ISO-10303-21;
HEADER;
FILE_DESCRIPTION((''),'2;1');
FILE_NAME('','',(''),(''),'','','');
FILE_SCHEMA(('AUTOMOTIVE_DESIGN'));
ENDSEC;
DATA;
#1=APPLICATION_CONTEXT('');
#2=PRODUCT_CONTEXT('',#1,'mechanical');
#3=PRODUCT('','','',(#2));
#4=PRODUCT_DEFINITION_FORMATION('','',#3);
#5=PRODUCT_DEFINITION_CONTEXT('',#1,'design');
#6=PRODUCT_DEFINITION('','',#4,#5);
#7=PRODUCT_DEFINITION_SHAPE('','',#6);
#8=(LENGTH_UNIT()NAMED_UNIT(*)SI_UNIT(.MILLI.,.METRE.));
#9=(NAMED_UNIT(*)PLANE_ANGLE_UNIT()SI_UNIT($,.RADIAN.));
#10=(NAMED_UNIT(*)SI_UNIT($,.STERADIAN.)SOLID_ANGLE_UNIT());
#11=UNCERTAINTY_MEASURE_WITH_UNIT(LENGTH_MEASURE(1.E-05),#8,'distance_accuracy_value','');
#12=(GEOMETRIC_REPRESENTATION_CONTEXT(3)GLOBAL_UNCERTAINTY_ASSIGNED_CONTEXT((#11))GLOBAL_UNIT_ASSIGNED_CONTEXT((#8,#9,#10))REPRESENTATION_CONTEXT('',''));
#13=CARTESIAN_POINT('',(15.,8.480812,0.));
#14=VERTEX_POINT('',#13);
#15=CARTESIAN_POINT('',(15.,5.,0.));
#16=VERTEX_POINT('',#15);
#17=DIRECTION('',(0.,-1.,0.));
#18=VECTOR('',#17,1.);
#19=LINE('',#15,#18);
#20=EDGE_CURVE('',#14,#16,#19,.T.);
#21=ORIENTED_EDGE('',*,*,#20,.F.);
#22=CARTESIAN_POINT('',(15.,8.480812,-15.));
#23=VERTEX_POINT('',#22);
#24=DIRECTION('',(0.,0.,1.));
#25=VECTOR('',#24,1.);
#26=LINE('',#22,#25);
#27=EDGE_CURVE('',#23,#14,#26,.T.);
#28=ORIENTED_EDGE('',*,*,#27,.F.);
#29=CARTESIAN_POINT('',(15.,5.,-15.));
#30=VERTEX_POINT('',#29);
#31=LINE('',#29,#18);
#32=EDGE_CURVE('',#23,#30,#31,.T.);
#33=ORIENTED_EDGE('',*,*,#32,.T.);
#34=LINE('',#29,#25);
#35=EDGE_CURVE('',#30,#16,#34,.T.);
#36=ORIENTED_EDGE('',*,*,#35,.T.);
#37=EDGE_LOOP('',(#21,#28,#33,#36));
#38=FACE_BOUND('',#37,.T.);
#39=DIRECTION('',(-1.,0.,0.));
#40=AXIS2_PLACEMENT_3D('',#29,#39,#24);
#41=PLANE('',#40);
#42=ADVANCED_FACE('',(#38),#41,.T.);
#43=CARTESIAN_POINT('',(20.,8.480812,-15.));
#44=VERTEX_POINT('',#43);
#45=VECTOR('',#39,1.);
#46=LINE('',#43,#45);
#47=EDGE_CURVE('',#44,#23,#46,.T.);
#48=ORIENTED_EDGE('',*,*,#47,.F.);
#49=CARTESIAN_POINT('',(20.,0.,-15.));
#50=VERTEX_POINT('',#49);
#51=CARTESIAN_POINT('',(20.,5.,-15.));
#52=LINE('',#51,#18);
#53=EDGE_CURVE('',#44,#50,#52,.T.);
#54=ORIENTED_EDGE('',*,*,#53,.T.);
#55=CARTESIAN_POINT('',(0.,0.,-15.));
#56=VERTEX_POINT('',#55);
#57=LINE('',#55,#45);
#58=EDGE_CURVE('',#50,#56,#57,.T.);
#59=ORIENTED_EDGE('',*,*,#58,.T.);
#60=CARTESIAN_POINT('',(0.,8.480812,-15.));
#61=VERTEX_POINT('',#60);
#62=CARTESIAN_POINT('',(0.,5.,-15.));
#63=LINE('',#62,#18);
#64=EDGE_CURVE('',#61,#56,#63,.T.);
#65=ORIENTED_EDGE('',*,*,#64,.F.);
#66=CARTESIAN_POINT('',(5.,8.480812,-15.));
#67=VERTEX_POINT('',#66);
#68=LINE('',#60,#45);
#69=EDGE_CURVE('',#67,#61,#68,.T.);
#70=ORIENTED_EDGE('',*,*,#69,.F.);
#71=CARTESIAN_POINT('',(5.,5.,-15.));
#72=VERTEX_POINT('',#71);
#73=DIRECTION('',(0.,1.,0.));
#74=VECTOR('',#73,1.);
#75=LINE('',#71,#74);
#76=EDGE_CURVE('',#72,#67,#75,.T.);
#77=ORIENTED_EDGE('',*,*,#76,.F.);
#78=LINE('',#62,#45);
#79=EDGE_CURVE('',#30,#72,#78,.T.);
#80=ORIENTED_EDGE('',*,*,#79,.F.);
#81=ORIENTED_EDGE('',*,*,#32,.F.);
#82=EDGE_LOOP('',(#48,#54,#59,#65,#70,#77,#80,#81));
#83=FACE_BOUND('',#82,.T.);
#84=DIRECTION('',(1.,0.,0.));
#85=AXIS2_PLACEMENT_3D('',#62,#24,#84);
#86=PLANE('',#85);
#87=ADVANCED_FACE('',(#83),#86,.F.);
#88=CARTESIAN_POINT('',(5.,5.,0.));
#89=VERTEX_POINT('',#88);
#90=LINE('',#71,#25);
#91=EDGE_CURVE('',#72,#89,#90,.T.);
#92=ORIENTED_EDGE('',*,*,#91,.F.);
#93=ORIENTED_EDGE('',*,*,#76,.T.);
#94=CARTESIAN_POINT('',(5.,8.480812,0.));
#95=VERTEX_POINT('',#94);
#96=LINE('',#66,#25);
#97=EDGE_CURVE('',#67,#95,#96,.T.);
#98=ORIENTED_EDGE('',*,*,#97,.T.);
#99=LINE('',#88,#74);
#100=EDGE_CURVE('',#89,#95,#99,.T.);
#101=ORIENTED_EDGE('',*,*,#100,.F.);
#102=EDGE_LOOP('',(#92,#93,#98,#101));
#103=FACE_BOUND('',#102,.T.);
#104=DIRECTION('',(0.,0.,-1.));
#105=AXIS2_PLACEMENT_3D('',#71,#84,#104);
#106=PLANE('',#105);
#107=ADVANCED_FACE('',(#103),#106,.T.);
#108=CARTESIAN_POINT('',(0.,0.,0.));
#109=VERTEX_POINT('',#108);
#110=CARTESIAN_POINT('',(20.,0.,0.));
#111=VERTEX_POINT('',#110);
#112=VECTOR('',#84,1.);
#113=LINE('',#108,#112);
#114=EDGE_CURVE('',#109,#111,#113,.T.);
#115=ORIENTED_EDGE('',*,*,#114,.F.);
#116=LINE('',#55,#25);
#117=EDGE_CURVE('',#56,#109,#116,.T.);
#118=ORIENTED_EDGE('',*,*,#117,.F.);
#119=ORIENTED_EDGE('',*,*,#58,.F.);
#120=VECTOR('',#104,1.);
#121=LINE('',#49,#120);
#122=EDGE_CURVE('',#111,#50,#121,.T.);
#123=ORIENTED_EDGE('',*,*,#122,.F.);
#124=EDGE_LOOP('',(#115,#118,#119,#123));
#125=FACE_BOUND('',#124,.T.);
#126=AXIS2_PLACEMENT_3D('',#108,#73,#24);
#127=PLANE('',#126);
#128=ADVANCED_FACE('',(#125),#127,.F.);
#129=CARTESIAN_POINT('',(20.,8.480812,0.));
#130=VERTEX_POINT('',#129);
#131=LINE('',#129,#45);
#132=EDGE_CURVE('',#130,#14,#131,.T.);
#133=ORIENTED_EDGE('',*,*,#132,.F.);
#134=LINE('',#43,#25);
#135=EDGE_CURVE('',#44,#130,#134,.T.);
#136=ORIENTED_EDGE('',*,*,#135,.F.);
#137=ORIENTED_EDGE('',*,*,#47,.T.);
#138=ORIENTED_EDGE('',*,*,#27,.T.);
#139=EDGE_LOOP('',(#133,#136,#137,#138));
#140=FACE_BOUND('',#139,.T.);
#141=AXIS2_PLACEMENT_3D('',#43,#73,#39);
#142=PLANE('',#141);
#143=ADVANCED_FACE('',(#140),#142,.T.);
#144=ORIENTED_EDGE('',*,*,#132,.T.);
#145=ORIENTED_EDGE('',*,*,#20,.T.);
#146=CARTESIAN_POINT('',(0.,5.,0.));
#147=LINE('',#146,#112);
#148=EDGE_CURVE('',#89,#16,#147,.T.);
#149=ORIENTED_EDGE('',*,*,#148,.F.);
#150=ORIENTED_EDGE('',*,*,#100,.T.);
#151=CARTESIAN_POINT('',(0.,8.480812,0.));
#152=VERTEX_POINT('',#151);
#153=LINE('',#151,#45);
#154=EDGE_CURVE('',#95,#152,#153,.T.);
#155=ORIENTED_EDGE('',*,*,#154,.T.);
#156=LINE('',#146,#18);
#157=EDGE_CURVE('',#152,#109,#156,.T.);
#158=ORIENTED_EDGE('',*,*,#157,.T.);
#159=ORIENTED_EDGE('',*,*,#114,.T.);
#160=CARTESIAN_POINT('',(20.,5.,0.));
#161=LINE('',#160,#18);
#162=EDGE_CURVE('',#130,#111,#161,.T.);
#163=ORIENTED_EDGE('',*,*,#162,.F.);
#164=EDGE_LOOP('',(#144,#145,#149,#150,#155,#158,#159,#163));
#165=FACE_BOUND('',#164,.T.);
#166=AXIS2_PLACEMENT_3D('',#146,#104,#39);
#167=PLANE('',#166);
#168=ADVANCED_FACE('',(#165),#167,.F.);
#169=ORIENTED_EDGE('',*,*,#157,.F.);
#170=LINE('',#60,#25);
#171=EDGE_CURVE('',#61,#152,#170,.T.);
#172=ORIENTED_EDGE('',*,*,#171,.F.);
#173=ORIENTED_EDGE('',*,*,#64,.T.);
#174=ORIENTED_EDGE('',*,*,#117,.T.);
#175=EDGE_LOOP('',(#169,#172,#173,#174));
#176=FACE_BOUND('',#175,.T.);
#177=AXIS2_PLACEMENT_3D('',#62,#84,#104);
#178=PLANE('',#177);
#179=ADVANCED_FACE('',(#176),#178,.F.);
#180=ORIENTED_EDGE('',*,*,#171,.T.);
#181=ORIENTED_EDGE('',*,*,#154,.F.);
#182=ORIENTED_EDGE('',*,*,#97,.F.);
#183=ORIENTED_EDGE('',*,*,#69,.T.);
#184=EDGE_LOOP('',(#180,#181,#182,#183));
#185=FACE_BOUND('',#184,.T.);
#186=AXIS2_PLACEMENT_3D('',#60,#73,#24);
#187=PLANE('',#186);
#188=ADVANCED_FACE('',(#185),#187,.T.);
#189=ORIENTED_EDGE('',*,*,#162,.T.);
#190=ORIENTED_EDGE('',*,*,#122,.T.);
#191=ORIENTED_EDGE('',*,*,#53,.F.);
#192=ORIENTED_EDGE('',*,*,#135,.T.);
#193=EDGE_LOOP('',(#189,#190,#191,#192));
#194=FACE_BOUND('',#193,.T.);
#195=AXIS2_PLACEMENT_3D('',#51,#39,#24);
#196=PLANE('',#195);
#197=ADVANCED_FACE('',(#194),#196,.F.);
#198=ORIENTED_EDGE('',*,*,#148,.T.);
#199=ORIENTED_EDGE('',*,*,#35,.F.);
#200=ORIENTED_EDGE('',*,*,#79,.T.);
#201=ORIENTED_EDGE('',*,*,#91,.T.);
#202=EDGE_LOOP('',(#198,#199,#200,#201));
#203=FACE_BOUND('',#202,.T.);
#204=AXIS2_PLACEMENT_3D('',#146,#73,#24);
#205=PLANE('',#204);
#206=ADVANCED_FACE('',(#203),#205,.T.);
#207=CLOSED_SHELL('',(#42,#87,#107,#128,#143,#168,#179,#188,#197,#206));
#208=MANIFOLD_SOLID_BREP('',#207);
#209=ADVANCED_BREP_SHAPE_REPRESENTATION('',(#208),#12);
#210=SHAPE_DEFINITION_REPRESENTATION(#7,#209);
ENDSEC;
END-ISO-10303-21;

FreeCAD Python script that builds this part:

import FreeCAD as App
import Part
import Sketcher
from FreeCAD import Vector
Q = App.Units.Quantity


def add_polygon(sketch, points):
    """Adds a closed chain of lines whose ends are joined by coincident constraints."""
    first, n = sketch.GeometryCount, len(points)
    for a, b in zip(points, points[1:] + points[:1]):
        sketch.addGeometry(Part.LineSegment(App.Vector(*a, 0), App.Vector(*b, 0)), False)
    for i in range(n):
        sketch.addConstraint(Sketcher.Constraint("Coincident", first + i, 2, first + (i + 1) % n, 1))

doc = App.newDocument("Part")
body = doc.addObject("PartDesign::Body", "Body")

# Sketch on XZ plane
sketch1 = body.newObject("Sketcher::SketchObject", "Sketch")
sketch1.AttachmentSupport = (doc.getObject("XZ_Plane"), [""])
sketch1.MapMode = "FlatFace"
add_polygon(sketch1, [(0, -15), (0, 0), (20, 0), (20, -15)])  # lines 0-3
sketch1.addConstraint(Sketcher.Constraint("Vertical", 0))
sketch1.addConstraint(Sketcher.Constraint("Horizontal", 1))
sketch1.addConstraint(Sketcher.Constraint("Vertical", 2))
sketch1.addConstraint(Sketcher.Constraint("Horizontal", 3))
sketch1.addConstraint(Sketcher.Constraint("Coincident", 0, 2, -1, 1))
sketch1.addConstraint(Sketcher.Constraint("DistanceX", 1, 1, 1, 2, Q("20 mm")))
sketch1.addConstraint(Sketcher.Constraint("DistanceY", 0, 1, 0, 2, Q("15 mm")))
pad1 = body.newObject("PartDesign::Pad", "Pad")
pad1.Profile = sketch1
pad1.Length = 5
pad1.Reversed = True

# Sketch on XY plane
sketch2 = body.newObject("Sketcher::SketchObject", "Sketch001")
sketch2.AttachmentSupport = (doc.getObject("XY_Plane"), [""])
sketch2.MapMode = "FlatFace"
add_polygon(sketch2, [(0, 8.5), (0, 5), (5, 5), (5, 8.5)])  # lines 0-3
add_polygon(sketch2, [(15, 8.5), (15, 5), (20, 5), (20, 8.5)])  # lines 4-7
sketch2.addConstraint(Sketcher.Constraint("Vertical", 0))
sketch2.addConstraint(Sketcher.Constraint("Horizontal", 1))
sketch2.addConstraint(Sketcher.Constraint("Vertical", 2))
sketch2.addConstraint(Sketcher.Constraint("Horizontal", 3))
sketch2.addConstraint(Sketcher.Constraint("Vertical", 4))
sketch2.addConstraint(Sketcher.Constraint("Horizontal", 5))
sketch2.addConstraint(Sketcher.Constraint("Vertical", 6))
sketch2.addConstraint(Sketcher.Constraint("Horizontal", 7))
sketch2.addConstraint(Sketcher.Constraint("PointOnObject", 0, 2, -2))
sketch2.addConstraint(Sketcher.Constraint("Horizontal", 1, 2, 4, 2))
sketch2.addConstraint(Sketcher.Constraint("Horizontal", 3, 2, 6, 2))
sketch2.addConstraint(Sketcher.Constraint("Equal", 3, 5))
sketch2.addConstraint(Sketcher.Constraint("DistanceX", 1, 1, 1, 2, Q("5 mm")))
sketch2.addConstraint(Sketcher.Constraint("DistanceY", -1, 1, 0, 2, Q("5 mm")))
sketch2.addConstraint(Sketcher.Constraint("DistanceX", -1, 1, 4, 2, Q("15 mm")))
sketch2.addConstraint(Sketcher.Constraint("DistanceY", 0, 2, 0, 1, Q("3.480812 mm")))
pad2 = body.newObject("PartDesign::Pad", "Pad001")
pad2.Profile = sketch2
pad2.Length = 15
pad2.Reversed = True

doc.recompute()
